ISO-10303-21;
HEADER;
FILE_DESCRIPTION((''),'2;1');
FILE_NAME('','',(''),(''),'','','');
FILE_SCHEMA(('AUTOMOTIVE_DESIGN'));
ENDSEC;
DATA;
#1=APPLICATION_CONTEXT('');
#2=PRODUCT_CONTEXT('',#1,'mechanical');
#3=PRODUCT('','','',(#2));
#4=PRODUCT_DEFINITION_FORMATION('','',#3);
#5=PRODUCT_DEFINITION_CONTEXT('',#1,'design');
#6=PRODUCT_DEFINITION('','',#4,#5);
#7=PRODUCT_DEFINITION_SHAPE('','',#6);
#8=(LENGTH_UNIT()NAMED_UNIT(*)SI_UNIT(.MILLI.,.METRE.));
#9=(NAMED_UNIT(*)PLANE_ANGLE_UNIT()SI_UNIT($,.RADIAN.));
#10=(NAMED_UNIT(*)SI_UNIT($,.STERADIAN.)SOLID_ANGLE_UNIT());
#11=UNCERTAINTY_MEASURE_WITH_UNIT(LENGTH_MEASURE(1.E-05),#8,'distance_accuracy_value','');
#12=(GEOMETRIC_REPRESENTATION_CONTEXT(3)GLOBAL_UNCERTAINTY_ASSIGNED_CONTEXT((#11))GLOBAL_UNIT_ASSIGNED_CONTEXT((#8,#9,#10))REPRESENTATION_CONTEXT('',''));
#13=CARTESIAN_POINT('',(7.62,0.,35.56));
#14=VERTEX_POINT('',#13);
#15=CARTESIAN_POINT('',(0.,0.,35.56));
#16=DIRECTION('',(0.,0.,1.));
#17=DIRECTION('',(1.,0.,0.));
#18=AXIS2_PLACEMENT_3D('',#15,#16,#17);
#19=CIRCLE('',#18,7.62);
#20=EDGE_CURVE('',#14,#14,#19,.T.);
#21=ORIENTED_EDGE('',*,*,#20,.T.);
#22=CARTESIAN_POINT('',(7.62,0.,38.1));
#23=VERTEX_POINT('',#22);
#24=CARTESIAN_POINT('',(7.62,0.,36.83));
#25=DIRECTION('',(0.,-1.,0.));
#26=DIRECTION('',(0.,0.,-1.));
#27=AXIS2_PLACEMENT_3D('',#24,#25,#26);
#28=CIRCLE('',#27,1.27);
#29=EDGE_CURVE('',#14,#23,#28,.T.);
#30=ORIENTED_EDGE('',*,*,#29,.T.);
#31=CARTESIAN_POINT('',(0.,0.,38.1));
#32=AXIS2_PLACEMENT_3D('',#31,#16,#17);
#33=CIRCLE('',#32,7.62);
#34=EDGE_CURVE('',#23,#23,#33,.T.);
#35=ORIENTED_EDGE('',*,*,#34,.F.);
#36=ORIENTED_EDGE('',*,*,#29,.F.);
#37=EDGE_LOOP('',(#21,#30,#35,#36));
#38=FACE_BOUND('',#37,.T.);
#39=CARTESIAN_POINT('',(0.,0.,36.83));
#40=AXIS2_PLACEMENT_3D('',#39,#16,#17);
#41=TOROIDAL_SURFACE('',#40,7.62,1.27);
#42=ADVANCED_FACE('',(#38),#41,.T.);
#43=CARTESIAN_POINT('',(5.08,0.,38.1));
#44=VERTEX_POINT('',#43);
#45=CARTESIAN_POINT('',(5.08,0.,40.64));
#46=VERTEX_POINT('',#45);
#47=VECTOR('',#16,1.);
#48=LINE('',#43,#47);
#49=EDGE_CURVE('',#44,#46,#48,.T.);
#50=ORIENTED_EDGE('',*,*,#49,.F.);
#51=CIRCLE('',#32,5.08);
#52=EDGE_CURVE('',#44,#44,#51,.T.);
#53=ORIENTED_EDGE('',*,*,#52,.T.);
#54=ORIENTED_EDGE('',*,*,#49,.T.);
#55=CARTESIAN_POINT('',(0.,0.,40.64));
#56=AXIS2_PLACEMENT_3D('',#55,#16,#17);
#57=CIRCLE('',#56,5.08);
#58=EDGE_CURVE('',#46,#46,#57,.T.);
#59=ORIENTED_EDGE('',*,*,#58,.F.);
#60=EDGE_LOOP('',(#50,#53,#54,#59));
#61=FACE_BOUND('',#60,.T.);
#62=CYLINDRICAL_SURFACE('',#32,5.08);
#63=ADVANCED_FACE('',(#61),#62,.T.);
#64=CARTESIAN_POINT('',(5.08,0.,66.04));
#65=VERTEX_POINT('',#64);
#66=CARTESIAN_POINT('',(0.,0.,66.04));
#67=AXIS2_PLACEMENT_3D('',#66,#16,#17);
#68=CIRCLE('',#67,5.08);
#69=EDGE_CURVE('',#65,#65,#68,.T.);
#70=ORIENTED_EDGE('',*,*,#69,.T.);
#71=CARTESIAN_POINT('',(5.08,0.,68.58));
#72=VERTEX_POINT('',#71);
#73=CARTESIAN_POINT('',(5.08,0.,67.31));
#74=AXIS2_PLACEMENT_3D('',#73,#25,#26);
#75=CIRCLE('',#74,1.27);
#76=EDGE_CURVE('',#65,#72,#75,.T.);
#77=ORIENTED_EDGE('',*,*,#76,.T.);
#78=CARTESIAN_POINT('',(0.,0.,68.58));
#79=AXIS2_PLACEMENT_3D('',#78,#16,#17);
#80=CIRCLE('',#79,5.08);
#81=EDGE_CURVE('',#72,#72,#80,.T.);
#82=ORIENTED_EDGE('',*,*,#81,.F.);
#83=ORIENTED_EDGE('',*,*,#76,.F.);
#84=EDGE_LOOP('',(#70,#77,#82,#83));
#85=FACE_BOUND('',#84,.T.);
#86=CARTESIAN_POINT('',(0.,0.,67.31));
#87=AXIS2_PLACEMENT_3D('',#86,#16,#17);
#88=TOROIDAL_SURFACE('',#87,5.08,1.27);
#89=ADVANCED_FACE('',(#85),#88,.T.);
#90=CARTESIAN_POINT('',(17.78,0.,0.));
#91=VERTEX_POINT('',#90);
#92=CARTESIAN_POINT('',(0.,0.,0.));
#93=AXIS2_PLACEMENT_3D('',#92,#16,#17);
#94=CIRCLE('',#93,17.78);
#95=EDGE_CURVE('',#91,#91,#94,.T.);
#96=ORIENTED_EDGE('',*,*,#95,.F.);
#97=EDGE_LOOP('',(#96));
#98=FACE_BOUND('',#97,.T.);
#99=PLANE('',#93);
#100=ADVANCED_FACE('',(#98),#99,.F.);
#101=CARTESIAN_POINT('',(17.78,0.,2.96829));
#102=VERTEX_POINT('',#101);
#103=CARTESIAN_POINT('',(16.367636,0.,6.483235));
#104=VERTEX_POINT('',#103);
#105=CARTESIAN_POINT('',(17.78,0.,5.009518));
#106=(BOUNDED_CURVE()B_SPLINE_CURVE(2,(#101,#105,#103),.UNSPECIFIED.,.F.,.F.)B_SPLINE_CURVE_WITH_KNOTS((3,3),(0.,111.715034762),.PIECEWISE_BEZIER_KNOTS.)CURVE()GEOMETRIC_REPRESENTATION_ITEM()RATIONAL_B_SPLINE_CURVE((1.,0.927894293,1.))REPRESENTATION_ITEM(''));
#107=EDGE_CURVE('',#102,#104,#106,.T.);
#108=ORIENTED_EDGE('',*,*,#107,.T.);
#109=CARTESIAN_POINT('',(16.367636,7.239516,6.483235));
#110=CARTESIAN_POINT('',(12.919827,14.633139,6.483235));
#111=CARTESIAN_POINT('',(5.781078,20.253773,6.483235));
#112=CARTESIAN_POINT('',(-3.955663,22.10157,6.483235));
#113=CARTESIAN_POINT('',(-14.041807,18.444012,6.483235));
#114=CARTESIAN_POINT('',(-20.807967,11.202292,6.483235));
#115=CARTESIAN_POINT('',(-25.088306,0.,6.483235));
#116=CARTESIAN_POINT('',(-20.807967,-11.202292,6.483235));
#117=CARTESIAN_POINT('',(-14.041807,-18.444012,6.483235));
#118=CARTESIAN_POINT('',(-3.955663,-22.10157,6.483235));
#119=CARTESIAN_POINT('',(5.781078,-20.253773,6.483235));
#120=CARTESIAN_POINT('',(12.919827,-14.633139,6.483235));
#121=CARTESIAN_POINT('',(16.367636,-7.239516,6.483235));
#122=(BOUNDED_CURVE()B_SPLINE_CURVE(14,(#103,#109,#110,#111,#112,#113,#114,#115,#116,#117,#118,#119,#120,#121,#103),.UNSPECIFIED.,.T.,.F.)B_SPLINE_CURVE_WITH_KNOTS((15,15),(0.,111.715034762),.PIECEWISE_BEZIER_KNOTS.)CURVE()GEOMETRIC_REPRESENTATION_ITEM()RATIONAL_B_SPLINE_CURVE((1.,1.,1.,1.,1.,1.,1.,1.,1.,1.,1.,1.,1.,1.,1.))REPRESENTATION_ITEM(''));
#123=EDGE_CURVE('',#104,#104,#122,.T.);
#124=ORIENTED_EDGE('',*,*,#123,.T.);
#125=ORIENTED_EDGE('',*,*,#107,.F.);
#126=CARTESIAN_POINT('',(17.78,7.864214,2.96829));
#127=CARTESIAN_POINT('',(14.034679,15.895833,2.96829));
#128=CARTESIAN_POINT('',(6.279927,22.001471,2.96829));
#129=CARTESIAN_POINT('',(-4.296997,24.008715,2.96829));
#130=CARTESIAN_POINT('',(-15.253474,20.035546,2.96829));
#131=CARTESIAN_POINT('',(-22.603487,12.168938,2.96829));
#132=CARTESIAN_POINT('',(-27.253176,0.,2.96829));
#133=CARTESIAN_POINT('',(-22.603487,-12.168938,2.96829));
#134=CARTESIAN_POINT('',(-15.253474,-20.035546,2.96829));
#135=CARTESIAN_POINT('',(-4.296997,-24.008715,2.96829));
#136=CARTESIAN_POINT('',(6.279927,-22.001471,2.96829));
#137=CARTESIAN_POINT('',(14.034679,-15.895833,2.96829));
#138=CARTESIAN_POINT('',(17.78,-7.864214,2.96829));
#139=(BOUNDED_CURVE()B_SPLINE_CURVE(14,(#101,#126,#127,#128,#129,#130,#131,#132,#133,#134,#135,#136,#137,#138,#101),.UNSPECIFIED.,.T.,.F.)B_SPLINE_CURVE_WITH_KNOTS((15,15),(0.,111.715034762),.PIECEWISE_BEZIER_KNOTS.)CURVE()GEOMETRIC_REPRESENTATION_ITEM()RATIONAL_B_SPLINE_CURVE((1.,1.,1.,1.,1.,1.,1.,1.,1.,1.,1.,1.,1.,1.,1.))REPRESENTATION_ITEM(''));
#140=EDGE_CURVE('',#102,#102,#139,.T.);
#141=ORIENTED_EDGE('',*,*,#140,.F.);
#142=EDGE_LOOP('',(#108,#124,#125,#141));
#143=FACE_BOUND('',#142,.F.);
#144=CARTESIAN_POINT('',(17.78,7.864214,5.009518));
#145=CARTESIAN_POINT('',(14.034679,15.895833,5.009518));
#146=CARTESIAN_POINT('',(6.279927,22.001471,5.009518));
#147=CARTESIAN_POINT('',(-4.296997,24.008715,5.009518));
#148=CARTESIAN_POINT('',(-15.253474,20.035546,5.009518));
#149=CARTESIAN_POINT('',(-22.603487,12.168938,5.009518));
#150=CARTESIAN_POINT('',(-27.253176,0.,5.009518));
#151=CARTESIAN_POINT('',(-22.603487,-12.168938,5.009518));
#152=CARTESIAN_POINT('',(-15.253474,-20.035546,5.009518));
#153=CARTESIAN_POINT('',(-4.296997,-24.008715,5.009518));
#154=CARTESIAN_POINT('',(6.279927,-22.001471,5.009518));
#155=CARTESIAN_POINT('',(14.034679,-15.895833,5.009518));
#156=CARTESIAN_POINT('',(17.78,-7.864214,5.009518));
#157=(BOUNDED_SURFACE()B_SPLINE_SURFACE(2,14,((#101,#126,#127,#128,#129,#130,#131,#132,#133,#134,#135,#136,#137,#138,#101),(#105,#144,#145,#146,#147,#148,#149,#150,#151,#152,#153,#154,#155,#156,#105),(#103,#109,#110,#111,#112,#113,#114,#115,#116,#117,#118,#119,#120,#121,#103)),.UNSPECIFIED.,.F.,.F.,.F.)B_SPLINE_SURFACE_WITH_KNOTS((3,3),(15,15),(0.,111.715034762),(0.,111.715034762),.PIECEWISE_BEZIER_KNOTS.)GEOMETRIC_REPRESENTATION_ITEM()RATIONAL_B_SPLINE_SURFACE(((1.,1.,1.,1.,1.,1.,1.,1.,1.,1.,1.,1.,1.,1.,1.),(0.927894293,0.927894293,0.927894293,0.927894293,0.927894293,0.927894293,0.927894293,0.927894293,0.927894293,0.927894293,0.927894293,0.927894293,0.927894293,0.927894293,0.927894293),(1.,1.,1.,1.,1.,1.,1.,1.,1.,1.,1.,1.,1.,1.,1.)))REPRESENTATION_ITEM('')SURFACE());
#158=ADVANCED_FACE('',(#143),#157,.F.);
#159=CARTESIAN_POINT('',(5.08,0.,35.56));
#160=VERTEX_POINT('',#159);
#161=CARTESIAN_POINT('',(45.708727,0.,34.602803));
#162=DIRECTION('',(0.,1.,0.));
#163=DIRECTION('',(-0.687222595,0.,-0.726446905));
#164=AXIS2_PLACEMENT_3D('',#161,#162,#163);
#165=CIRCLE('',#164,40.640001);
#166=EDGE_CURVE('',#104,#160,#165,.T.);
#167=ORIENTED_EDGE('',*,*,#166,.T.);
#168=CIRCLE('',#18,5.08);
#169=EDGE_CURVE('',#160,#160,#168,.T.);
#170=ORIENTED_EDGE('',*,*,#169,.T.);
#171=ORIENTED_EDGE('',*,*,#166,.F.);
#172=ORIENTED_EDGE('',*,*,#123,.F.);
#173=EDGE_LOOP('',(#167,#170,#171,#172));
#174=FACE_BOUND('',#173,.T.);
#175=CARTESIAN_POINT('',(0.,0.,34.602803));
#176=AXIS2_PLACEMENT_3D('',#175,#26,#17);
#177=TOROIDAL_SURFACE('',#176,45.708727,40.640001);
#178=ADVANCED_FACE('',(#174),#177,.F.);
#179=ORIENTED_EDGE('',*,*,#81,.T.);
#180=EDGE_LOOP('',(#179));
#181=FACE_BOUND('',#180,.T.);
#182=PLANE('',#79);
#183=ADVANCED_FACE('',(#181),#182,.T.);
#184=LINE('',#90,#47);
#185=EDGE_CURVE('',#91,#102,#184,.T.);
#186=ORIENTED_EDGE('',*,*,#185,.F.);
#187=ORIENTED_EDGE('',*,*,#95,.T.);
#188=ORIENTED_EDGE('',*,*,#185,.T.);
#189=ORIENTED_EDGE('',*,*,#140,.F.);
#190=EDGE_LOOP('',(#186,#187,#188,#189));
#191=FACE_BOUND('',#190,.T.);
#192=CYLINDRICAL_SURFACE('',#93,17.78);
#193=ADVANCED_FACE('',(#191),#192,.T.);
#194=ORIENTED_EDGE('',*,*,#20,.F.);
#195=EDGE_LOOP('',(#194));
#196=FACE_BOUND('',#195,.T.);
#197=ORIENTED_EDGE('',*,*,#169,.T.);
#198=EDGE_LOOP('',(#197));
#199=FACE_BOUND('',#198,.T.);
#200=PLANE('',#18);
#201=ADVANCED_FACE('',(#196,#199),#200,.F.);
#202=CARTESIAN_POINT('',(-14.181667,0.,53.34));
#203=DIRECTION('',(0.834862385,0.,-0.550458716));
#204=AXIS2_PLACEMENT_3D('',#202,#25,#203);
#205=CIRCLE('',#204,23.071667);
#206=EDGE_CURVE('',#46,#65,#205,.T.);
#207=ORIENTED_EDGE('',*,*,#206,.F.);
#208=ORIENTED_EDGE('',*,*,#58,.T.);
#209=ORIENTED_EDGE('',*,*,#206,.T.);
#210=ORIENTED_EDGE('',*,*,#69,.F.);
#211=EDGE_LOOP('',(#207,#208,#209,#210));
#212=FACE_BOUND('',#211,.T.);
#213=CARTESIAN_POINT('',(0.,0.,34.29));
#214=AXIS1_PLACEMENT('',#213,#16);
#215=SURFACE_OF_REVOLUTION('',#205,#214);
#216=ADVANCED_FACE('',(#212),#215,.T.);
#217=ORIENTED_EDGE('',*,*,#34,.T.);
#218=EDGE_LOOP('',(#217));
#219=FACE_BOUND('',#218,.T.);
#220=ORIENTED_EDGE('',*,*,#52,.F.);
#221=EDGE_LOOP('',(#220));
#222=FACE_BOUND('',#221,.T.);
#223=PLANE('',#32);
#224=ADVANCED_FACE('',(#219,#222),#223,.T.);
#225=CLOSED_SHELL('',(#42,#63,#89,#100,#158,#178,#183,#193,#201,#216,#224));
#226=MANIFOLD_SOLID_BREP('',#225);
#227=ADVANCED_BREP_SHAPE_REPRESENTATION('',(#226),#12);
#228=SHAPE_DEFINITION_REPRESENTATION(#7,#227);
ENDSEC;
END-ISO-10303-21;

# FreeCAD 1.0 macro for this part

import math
import FreeCAD as App
import Part
import Sketcher
from FreeCAD import Vector
Q = App.Units.Quantity


def edges_at(feature, points):
    """Names of the edges that pass closest to the given points."""
    edges = feature.Shape.Edges
    near = lambda p: min(range(len(edges)), key=lambda i: edges[i].distToShape(Part.Vertex(*p))[0])
    return sorted({f"Edge{near(p) + 1}" for p in points})

doc = App.newDocument("Part")
body = doc.addObject("PartDesign::Body", "Body")

# Sketch on XZ plane
sketch1 = body.newObject("Sketcher::SketchObject", "Sketch")
sketch1.AttachmentSupport = (doc.getObject("XZ_Plane"), [""])
sketch1.MapMode = "FlatFace"
sketch1.addGeometry(Part.LineSegment(Vector(0, 68.6, 0), Vector(0, 0, 0)), False)
sketch1.addGeometry(Part.LineSegment(Vector(0, 0, 0), Vector(17.8, 0, 0)), False)
sketch1.addGeometry(Part.LineSegment(Vector(17.8, 0, 0), Vector(17.8, 5.1, 0)), False)
sketch1.addGeometry(Part.ArcOfCircle(Part.Circle(Vector(45.7, 34.6, 0), Vector(0, 0, 1), 40.6), math.radians(179), math.radians(227)), False)
sketch1.addGeometry(Part.LineSegment(Vector(5.1, 35.6, 0), Vector(7.6, 35.6, 0)), False)
sketch1.addGeometry(Part.ArcOfCircle(Part.Circle(Vector(7.6, 36.8, 0), Vector(0, 0, 1), 1.3), math.radians(-90), math.radians(90)), False)
sketch1.addGeometry(Part.LineSegment(Vector(7.6, 38.1, 0), Vector(5.1, 38.1, 0)), False)
sketch1.addGeometry(Part.LineSegment(Vector(5.1, 38.1, 0), Vector(5.1, 40.6, 0)), False)
sketch1.addGeometry(Part.ArcOfCircle(Part.Circle(Vector(-14.2, 53.3, 0), Vector(0, 0, 1), 23.1), math.radians(-33), math.radians(33)), False)
sketch1.addGeometry(Part.ArcOfCircle(Part.Circle(Vector(5.1, 67.3, 0), Vector(0, 0, 1), 1.3), math.radians(-90), math.radians(90)), False)
sketch1.addGeometry(Part.LineSegment(Vector(5.1, 68.6, 0), Vector(0, 68.6, 0)), False)
sketch1.addConstraint(Sketcher.Constraint("Coincident", 0, 2, 1, 1))
sketch1.addConstraint(Sketcher.Constraint("Coincident", 1, 2, 2, 1))
sketch1.addConstraint(Sketcher.Constraint("Coincident", 2, 2, 3, 2))
sketch1.addConstraint(Sketcher.Constraint("Coincident", 3, 1, 4, 1))
sketch1.addConstraint(Sketcher.Constraint("Tangent", 4, 2, 5, 1))
sketch1.addConstraint(Sketcher.Constraint("Tangent", 5, 2, 6, 1))
sketch1.addConstraint(Sketcher.Constraint("Coincident", 6, 2, 7, 1))
sketch1.addConstraint(Sketcher.Constraint("Coincident", 7, 2, 8, 1))
sketch1.addConstraint(Sketcher.Constraint("Coincident", 8, 2, 9, 1))
sketch1.addConstraint(Sketcher.Constraint("Tangent", 9, 2, 10, 1))
sketch1.addConstraint(Sketcher.Constraint("Coincident", 10, 2, 0, 1))
sketch1.addConstraint(Sketcher.Constraint("Vertical", 0))
sketch1.addConstraint(Sketcher.Constraint("Horizontal", 1))
sketch1.addConstraint(Sketcher.Constraint("Vertical", 2))
sketch1.addConstraint(Sketcher.Constraint("Horizontal", 4))
sketch1.addConstraint(Sketcher.Constraint("Horizontal", 6))
sketch1.addConstraint(Sketcher.Constraint("Vertical", 7))
sketch1.addConstraint(Sketcher.Constraint("Horizontal", 10))
sketch1.addConstraint(Sketcher.Constraint("Coincident", 0, 2, -1, 1))
sketch1.addConstraint(Sketcher.Constraint("Equal", 5, 9))
sketch1.addConstraint(Sketcher.Constraint("Vertical", 9, 3, 3, 1))
sketch1.addConstraint(Sketcher.Constraint("Vertical", 3, 1, 6, 2))
sketch1.addConstraint(Sketcher.Constraint("Vertical", 7, 2, 8, 2))
sketch1.addConstraint(Sketcher.Constraint("Equal", 10, 2))
sketch1.addConstraint(Sketcher.Constraint("Equal", 6, 7))
sketch1.addConstraint(Sketcher.Constraint("Radius", 3, Q("1.6 in")))
sketch1.addConstraint(Sketcher.Constraint("Radius", 5, Q("0.05 in")))
sketch1.addConstraint(Sketcher.Constraint("DistanceX", 1, 1, 1, 2, Q("0.7 in")))
sketch1.addConstraint(Sketcher.Constraint("DistanceX", 4, 1, 4, 2, Q("0.1 in")))
sketch1.addConstraint(Sketcher.Constraint("DistanceX", 10, 2, 10, 1, Q("0.2 in")))
sketch1.addConstraint(Sketcher.Constraint("DistanceY", 0, 2, 0, 1, Q("2.7 in")))
sketch1.addConstraint(Sketcher.Constraint("DistanceY", 7, 2, 8, 2, Q("1 in")))
sketch1.addConstraint(Sketcher.Constraint("Radius", 8, 23.071667))
revolution = body.newObject("PartDesign::Revolution", "Revolution")
revolution.Profile = sketch1
revolution.ReferenceAxis = (sketch1, ["V_Axis"])
revolution.Angle = 360
doc.recompute()

fillet = body.newObject("PartDesign::Fillet", "Fillet")
fillet.Base = (revolution, edges_at(revolution, [(-17.78, 0, 5.08)]))
fillet.Radius = Q("0.2 in")

doc.recompute()
